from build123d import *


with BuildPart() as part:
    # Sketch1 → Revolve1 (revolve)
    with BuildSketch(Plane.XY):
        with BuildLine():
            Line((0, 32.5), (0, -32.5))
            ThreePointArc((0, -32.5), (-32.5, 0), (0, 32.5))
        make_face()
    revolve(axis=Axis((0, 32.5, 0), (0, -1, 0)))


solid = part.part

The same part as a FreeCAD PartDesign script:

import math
import FreeCAD as App
import Part
import Sketcher

V = App.Vector

doc = App.newDocument("Part")
body = doc.addObject("PartDesign::Body", "Body")

# Sketch on XY plane
sketch1 = doc.addObject("Sketcher::SketchObject", "Sketch")
body.addObject(sketch1)
sketch1.AttachmentSupport = (doc.XY_Plane, [""])
sketch1.MapMode = "FlatFace"
sketch1.addGeometry([
    Part.LineSegment(V(0, -32, 0), V(0, 32, 0)),
    Part.ArcOfCircle(Part.Circle(V(0, 0, 0), V(0, 0, 1), 32), math.radians(90), math.radians(270)),
], False)
sketch1.addConstraint([
    Sketcher.Constraint("Coincident", 0, 1, 1, 2),
    Sketcher.Constraint("Coincident", 1, 1, 0, 2),
    Sketcher.Constraint("Vertical", 0),
    Sketcher.Constraint("Coincident", 1, 3, -1, 1),
    Sketcher.Constraint("PointOnObject", 0, 1, -2),
    Sketcher.Constraint("Radius", 1, 32.5),
])
revolution = doc.addObject("PartDesign::Revolution", "Revolution")
body.addObject(revolution)
revolution.Profile = sketch1
revolution.ReferenceAxis = (sketch1, ["V_Axis"])
revolution.Angle = 360

doc.recompute()
